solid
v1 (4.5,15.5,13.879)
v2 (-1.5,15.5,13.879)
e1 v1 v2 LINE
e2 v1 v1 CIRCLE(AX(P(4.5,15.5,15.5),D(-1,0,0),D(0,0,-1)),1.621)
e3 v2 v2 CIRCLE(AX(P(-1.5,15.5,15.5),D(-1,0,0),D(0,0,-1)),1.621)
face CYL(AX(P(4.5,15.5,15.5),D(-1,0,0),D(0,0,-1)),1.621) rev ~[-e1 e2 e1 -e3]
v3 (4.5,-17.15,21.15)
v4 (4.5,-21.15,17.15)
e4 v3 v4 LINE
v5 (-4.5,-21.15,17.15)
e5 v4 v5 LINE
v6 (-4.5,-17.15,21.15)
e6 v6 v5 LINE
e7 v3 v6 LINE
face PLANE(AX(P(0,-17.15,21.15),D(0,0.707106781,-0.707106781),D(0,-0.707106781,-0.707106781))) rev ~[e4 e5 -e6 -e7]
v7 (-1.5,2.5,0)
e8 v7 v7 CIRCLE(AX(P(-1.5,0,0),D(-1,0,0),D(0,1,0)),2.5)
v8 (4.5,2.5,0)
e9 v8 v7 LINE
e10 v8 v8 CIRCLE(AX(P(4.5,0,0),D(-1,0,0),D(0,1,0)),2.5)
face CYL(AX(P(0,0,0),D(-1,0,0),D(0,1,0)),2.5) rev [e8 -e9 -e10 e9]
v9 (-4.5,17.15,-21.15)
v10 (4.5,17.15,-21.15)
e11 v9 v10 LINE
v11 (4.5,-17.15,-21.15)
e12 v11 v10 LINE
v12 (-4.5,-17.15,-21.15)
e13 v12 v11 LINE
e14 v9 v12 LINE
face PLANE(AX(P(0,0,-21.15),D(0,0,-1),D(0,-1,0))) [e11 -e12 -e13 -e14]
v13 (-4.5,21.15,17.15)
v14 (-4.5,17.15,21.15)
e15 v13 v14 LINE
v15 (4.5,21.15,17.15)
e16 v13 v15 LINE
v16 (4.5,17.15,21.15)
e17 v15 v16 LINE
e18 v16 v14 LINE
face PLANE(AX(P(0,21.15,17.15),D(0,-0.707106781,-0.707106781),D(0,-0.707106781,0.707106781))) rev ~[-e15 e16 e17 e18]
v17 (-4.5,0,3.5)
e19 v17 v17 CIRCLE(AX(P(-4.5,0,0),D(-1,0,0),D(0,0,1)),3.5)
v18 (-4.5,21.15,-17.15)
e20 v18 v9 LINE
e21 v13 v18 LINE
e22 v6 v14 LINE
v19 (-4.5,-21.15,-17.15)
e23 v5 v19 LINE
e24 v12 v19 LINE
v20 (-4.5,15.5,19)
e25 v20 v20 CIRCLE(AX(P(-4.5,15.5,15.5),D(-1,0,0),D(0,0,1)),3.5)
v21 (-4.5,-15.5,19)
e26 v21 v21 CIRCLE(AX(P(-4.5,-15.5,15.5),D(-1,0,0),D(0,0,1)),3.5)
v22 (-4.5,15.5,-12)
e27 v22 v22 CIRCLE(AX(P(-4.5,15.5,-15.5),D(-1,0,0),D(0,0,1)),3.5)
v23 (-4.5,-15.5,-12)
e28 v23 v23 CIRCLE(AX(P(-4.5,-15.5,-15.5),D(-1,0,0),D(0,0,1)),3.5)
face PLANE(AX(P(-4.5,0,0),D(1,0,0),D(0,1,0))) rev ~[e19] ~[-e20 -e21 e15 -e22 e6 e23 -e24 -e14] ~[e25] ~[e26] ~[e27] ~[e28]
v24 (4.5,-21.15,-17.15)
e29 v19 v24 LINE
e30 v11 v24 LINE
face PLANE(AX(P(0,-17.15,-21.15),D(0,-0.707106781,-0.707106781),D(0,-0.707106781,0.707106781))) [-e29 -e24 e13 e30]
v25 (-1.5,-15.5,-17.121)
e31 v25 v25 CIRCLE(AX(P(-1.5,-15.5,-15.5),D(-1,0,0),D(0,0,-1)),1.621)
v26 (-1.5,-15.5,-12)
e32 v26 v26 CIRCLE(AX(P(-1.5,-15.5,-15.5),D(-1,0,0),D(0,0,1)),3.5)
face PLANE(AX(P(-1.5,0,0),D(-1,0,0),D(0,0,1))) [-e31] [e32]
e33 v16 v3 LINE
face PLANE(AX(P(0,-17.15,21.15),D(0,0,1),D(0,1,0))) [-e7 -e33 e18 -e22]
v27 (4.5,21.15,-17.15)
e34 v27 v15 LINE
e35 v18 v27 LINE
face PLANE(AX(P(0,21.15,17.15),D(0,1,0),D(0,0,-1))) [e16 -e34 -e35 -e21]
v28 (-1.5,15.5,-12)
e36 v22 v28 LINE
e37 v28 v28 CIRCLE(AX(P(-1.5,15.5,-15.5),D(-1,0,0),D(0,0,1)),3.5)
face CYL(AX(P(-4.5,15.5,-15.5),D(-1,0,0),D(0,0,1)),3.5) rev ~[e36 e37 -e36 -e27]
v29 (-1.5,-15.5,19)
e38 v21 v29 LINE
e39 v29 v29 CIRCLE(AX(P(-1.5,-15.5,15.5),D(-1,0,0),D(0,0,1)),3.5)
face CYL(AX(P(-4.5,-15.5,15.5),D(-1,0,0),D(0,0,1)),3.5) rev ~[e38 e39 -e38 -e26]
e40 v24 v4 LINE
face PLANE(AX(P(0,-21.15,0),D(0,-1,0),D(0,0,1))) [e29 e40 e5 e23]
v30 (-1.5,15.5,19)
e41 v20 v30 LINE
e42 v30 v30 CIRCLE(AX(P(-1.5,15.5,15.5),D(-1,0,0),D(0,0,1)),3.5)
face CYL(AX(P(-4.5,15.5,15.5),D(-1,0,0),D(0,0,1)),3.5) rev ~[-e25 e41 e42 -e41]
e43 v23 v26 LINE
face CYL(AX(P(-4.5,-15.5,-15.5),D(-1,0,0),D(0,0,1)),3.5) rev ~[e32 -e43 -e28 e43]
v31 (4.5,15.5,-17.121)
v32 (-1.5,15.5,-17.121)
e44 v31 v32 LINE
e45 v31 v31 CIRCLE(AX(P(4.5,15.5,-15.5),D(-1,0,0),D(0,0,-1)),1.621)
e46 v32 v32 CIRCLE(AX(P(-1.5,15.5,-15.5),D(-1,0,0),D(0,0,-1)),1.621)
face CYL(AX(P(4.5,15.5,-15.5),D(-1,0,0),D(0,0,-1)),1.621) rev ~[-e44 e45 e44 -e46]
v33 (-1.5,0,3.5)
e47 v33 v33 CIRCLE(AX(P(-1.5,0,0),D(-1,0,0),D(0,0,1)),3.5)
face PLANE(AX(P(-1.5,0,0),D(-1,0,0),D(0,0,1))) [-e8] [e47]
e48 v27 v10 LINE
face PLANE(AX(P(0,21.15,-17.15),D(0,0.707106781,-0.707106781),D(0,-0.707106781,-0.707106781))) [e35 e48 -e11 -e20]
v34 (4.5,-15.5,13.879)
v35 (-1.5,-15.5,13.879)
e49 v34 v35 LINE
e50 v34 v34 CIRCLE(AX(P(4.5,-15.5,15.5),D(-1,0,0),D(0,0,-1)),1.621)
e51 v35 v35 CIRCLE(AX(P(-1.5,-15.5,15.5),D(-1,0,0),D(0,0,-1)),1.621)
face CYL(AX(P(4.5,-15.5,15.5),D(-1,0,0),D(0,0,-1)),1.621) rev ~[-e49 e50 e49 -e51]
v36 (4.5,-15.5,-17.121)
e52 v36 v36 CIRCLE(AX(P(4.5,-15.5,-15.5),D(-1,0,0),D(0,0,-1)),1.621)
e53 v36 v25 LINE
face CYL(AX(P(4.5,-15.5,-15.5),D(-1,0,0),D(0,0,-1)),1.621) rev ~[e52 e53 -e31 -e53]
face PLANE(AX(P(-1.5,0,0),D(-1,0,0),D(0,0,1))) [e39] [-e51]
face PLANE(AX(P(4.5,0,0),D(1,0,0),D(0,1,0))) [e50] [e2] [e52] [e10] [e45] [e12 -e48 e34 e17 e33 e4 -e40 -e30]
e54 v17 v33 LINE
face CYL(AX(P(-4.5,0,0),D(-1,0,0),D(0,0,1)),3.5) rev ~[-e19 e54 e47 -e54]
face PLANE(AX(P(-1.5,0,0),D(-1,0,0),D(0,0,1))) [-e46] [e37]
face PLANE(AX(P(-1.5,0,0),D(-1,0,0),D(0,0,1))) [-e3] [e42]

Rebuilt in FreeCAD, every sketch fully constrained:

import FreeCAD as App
import Part
import Sketcher


def add_polygon(sketch, points):
    """Adds a closed chain of lines whose ends are joined by coincident constraints."""
    first, n = sketch.GeometryCount, len(points)
    for a, b in zip(points, points[1:] + points[:1]):
        sketch.addGeometry(Part.LineSegment(App.Vector(*a, 0), App.Vector(*b, 0)), False)
    for i in range(n):
        sketch.addConstraint(Sketcher.Constraint("Coincident", first + i, 2, first + (i + 1) % n, 1))

doc = App.newDocument("Part")
params = doc.addObject("Spreadsheet::Sheet", "Params")
for row, (alias, value) in enumerate([
    ("sketch1_diameter", "5 mm"),
    ("pad1_length", "9 mm"),
    ("hole_diameter", "3.242 mm"),
    ("sketch3_diameter", "7 mm"),
    ("pocket1_length", "3 mm"),
    ("sketch4_diameter", "7 mm"),
    ("sketch4_diameter2", "5 mm"),
    ("pocket2_length", "3 mm"),
], start=1):
    params.set(f"A{row}", alias)
    params.set(f"B{row}", "=" + value)
    params.setAlias(f"B{row}", alias)

body = doc.addObject("PartDesign::Body", "Body")

# Sketch on YZ plane
sketch1 = body.newObject("Sketcher::SketchObject", "Sketch")
sketch1.AttachmentSupport = (doc.getObject("YZ_Plane"), [""])
sketch1.MapMode = "FlatFace"
add_polygon(sketch1, [(-21.1, 17.1), (-21.1, -17.1), (-17.1, -21.1), (17.1, -21.1), (21.1, -17.1), (21.1, 17.1), (17.1, 21.1), (-17.1, 21.1)])  # lines 0-7
sketch1.addGeometry(Part.Circle(App.Vector(0, 0, 0), App.Vector(0, 0, 1), 2.5), False)  # 8
sketch1.addConstraint([
    Sketcher.Constraint("Vertical", 0),
    Sketcher.Constraint("Horizontal", 2),
    Sketcher.Constraint("Vertical", 4),
    Sketcher.Constraint("Horizontal", 6),
    Sketcher.Constraint("Coincident", 8, 3, -1, 1),
    Sketcher.Constraint("Symmetric", 0, 2, 4, 2, -1, 1),
    Sketcher.Constraint("Symmetric", 1, 2, 5, 2, -1, 1),
    Sketcher.Constraint("Perpendicular", 1, 3),
    Sketcher.Constraint("Perpendicular", 5, 7),
    Sketcher.Constraint("Horizontal", 0, 2, 3, 2),
    Sketcher.Constraint("Horizontal", 4, 2, 7, 2),
    Sketcher.Constraint("Vertical", 2, 2, 5, 2),
    Sketcher.Constraint("Equal", 6, 0),
    Sketcher.Constraint("Diameter", 8, 5.0),
    Sketcher.Constraint("DistanceX", 0, 2, 1, 2, 4.0),
    Sketcher.Constraint("DistanceX", 0, 2, 3, 2, 42.3),
])
sketch1.setExpression("Constraints[21]", "Params.sketch1_diameter")
pad1 = body.newObject("PartDesign::Pad", "Pad")
pad1.Profile = sketch1
pad1.setExpression("Length", "Params.pad1_length")
pad1.Midplane = True

# Sketch on YZ plane
sketch2 = body.newObject("Sketcher::SketchObject", "Sketch001")
sketch2.AttachmentSupport = (doc.getObject("YZ_Plane"), [""])
sketch2.MapMode = "FlatFace"
sketch2.AttachmentOffset = App.Placement(App.Vector(0, 0, 4.5), App.Rotation())
sketch2.addGeometry([
    Part.Circle(App.Vector(15.5, 15.5, 0), App.Vector(0, 0, 1), 1.6),
    Part.Circle(App.Vector(15.5, -15.5, 0), App.Vector(0, 0, 1), 1.6),
    Part.Circle(App.Vector(-15.5, 15.5, 0), App.Vector(0, 0, 1), 1.6),
    Part.Circle(App.Vector(-15.5, -15.5, 0), App.Vector(0, 0, 1), 1.6),
], False)
sketch2.addConstraint([
    Sketcher.Constraint("Equal", 0, 1),
    Sketcher.Constraint("Equal", 1, 2),
    Sketcher.Constraint("Equal", 2, 3),
    Sketcher.Constraint("Symmetric", 1, 3, 2, 3, -1, 1),
    Sketcher.Constraint("Symmetric", 0, 3, 3, 3, -1, 1),
    Sketcher.Constraint("Symmetric", 0, 3, 2, 3, -2),
    Sketcher.Constraint("Diameter", 0, 3.242),
    Sketcher.Constraint("DistanceY", 1, 3, 0, 3, 31.0),
    Sketcher.Constraint("DistanceX", 2, 3, 0, 3, 31.0),
])
doc.recompute()
hole = body.newObject("PartDesign::Hole", "Hole")
hole.Profile = sketch2
hole.ThreadType = "None"
hole.setExpression("Diameter", "Params.hole_diameter")
hole.DepthType = "ThroughAll"

# Sketch on YZ plane
sketch3 = body.newObject("Sketcher::SketchObject", "Sketch002")
sketch3.AttachmentSupport = (doc.getObject("YZ_Plane"), [""])
sketch3.MapMode = "FlatFace"
sketch3.AttachmentOffset = App.Placement(App.Vector(0, 0, -4.5), App.Rotation())
sketch3.addGeometry([
    Part.Circle(App.Vector(15.5, 15.5, 0), App.Vector(0, 0, 1), 3.5),  # 0
    Part.Circle(App.Vector(15.5, 15.5, 0), App.Vector(0, 0, 1), 1.6),  # 1
    Part.Circle(App.Vector(-15.5, 15.5, 0), App.Vector(0, 0, 1), 3.5),  # 2
    Part.Circle(App.Vector(-15.5, 15.5, 0), App.Vector(0, 0, 1), 1.6),  # 3
    Part.Circle(App.Vector(15.5, -15.5, 0), App.Vector(0, 0, 1), 3.5),  # 4
    Part.Circle(App.Vector(15.5, -15.5, 0), App.Vector(0, 0, 1), 1.6),  # 5
    Part.Circle(App.Vector(-15.5, -15.5, 0), App.Vector(0, 0, 1), 3.5),  # 6
    Part.Circle(App.Vector(-15.5, -15.5, 0), App.Vector(0, 0, 1), 1.6),  # 7
], False)
sketch3.addConstraint([
    Sketcher.Constraint("Coincident", 1, 3, 0, 3),
    Sketcher.Constraint("Coincident", 3, 3, 2, 3),
    Sketcher.Constraint("Coincident", 5, 3, 4, 3),
    Sketcher.Constraint("Coincident", 7, 3, 6, 3),
    Sketcher.Constraint("Equal", 0, 2),
    Sketcher.Constraint("Equal", 1, 3),
    Sketcher.Constraint("Equal", 2, 4),
    Sketcher.Constraint("Equal", 3, 5),
    Sketcher.Constraint("Equal", 4, 6),
    Sketcher.Constraint("Equal", 5, 7),
    Sketcher.Constraint("Symmetric", 2, 3, 4, 3, -1, 1),
    Sketcher.Constraint("Symmetric", 0, 3, 6, 3, -1, 1),
    Sketcher.Constraint("Symmetric", 0, 3, 2, 3, -2),
    Sketcher.Constraint("Diameter", 0, 7.0),
    Sketcher.Constraint("Diameter", 1, 3.242),
    Sketcher.Constraint("DistanceX", 2, 3, 0, 3, 31.0),
    Sketcher.Constraint("DistanceY", 4, 3, 0, 3, 31.0),
])
sketch3.setExpression("Constraints[13]", "Params.sketch3_diameter")
pocket1 = body.newObject("PartDesign::Pocket", "Pocket")
pocket1.Profile = sketch3
pocket1.setExpression("Length", "Params.pocket1_length")
pocket1.Reversed = True

# Sketch on YZ plane
sketch4 = body.newObject("Sketcher::SketchObject", "Sketch003")
sketch4.AttachmentSupport = (doc.getObject("YZ_Plane"), [""])
sketch4.MapMode = "FlatFace"
sketch4.AttachmentOffset = App.Placement(App.Vector(0, 0, -4.5), App.Rotation())
sketch4.addGeometry([
    Part.Circle(App.Vector(0, 0, 0), App.Vector(0, 0, 1), 3.5),
    Part.Circle(App.Vector(0, 0, 0), App.Vector(0, 0, 1), 2.5),
], False)
sketch4.addConstraint([
    Sketcher.Constraint("Coincident", 0, 3, -1, 1),
    Sketcher.Constraint("Coincident", 1, 3, -1, 1),
    Sketcher.Constraint("Diameter", 0, 7.0),
    Sketcher.Constraint("Diameter", 1, 5.0),
])
sketch4.setExpression("Constraints[2]", "Params.sketch4_diameter")
sketch4.setExpression("Constraints[3]", "Params.sketch4_diameter2")
pocket2 = body.newObject("PartDesign::Pocket", "Pocket001")
pocket2.Profile = sketch4
pocket2.setExpression("Length", "Params.pocket2_length")
pocket2.Reversed = True

doc.recompute()
